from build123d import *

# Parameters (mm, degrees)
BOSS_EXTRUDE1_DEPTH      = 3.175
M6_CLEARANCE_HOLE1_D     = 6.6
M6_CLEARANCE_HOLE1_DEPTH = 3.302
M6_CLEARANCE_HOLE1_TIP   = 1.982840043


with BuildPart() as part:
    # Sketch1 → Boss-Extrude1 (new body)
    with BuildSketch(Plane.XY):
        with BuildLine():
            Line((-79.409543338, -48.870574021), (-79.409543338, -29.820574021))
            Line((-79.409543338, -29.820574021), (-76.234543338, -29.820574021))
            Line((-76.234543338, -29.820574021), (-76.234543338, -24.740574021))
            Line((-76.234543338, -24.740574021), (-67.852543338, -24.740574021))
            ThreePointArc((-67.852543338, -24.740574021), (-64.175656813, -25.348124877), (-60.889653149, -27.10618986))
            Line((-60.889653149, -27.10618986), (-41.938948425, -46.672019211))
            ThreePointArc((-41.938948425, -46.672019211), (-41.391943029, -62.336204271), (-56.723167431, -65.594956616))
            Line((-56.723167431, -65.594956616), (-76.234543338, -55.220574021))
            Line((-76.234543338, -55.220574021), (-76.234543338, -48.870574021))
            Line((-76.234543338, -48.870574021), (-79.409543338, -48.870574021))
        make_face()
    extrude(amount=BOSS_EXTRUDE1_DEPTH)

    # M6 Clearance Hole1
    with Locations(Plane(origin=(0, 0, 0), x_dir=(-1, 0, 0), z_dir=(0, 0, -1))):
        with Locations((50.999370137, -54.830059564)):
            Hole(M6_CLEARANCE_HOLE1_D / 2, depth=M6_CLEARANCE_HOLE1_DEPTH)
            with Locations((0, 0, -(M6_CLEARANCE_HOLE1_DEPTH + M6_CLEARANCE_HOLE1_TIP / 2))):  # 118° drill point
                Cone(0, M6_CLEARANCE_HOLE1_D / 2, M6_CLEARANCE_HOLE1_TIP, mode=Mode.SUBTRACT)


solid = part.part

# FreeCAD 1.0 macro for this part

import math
import FreeCAD as App
import Part
import Sketcher
Q = App.Units.Quantity

doc = App.newDocument("Part")
body = doc.addObject("PartDesign::Body", "Body")

sketch1 = body.newObject("Sketcher::SketchObject", "Sketch")
sketch1.AttachmentSupport = (doc.getObject("XY_Plane"), [""])
sketch1.MapMode = "FlatFace"
sketch1.addGeometry(Part.LineSegment(App.Vector(-79.409543, -29.820574, 0), App.Vector(-79.409543, -48.870574, 0)), False)
sketch1.addGeometry(Part.LineSegment(App.Vector(-79.409543, -48.870574, 0), App.Vector(-76.234543, -48.870574, 0)), False)
sketch1.addGeometry(Part.LineSegment(App.Vector(-76.234543, -48.870574, 0), App.Vector(-76.234543, -55.220574, 0)), False)
sketch1.addGeometry(Part.LineSegment(App.Vector(-76.234543, -55.220574, 0), App.Vector(-56.723167, -65.594957, 0)), False)
sketch1.addGeometry(Part.ArcOfCircle(Part.Circle(App.Vector(-50.99937, -54.83006, 0), App.Vector(0, 0, 1), 12.192), math.radians(-118), math.radians(42)), False)
sketch1.addGeometry(Part.LineSegment(App.Vector(-41.938948, -46.672019, 0), App.Vector(-60.889653, -27.10619, 0)), False)
sketch1.addGeometry(Part.ArcOfCircle(Part.Circle(App.Vector(-67.852543, -36.170574, 0), App.Vector(0, 0, 1), 11.43), math.radians(52.47), math.radians(90)), False)
sketch1.addGeometry(Part.LineSegment(App.Vector(-67.852543, -24.740574, 0), App.Vector(-76.234543, -24.740574, 0)), False)
sketch1.addGeometry(Part.LineSegment(App.Vector(-76.234543, -24.740574, 0), App.Vector(-76.234543, -29.820574, 0)), False)
sketch1.addGeometry(Part.LineSegment(App.Vector(-76.234543, -29.820574, 0), App.Vector(-79.409543, -29.820574, 0)), False)
sketch1.addConstraint(Sketcher.Constraint("Coincident", 0, 2, 1, 1))
sketch1.addConstraint(Sketcher.Constraint("Coincident", 1, 2, 2, 1))
sketch1.addConstraint(Sketcher.Constraint("Coincident", 2, 2, 3, 1))
sketch1.addConstraint(Sketcher.Constraint("Tangent", 3, 2, 4, 1))
sketch1.addConstraint(Sketcher.Constraint("Coincident", 4, 2, 5, 1))
sketch1.addConstraint(Sketcher.Constraint("Coincident", 5, 2, 6, 1))
sketch1.addConstraint(Sketcher.Constraint("Tangent", 6, 2, 7, 1))
sketch1.addConstraint(Sketcher.Constraint("Coincident", 7, 2, 8, 1))
sketch1.addConstraint(Sketcher.Constraint("Coincident", 8, 2, 9, 1))
sketch1.addConstraint(Sketcher.Constraint("Coincident", 9, 2, 0, 1))
sketch1.addConstraint(Sketcher.Constraint("Vertical", 0))
sketch1.addConstraint(Sketcher.Constraint("Horizontal", 1))
sketch1.addConstraint(Sketcher.Constraint("Vertical", 2))
sketch1.addConstraint(Sketcher.Constraint("Horizontal", 7))
sketch1.addConstraint(Sketcher.Constraint("Vertical", 8))
sketch1.addConstraint(Sketcher.Constraint("Horizontal", 9))
sketch1.addConstraint(Sketcher.Constraint("Vertical", 2, 2, 7, 2))
sketch1.addConstraint(Sketcher.Constraint("Radius", 4, Q("0.48 in")))
sketch1.addConstraint(Sketcher.Constraint("Radius", 6, Q("0.45 in")))
sketch1.addConstraint(Sketcher.Constraint("DistanceY", 8, 2, 8, 1, Q("0.2 in")))
sketch1.addConstraint(Sketcher.Constraint("Angle", 3, Q("-28 deg")))
sketch1.addConstraint(Sketcher.Constraint("DistanceX", 7, 2, 7, 1, Q("0.33 in")))
sketch1.addConstraint(Sketcher.Constraint("DistanceY", 0, 2, 0, 1, Q("0.75 in")))
sketch1.addConstraint(Sketcher.Constraint("DistanceY", 2, 2, 2, 1, Q("0.25 in")))
sketch1.addConstraint(Sketcher.Constraint("Distance", 3, Q("0.87 in")))
sketch1.addConstraint(Sketcher.Constraint("DistanceX", 1, 1, 1, 2, Q("0.125 in")))
sketch1.addConstraint(Sketcher.Constraint("DistanceX", 4, 3, -1, 1, 50.99937))
sketch1.addConstraint(Sketcher.Constraint("DistanceY", 4, 3, -1, 1, 54.83006))
sketch1.addConstraint(Sketcher.Constraint("DistanceX", 4, 2, -1, 1, 41.938948))
sketch1.addConstraint(Sketcher.Constraint("DistanceY", 5, 2, -1, 1, 27.10619))
pad1 = body.newObject("PartDesign::Pad", "Pad")
pad1.Profile = sketch1
pad1.Length = Q("0.125 in")

sketch2 = body.newObject("Sketcher::SketchObject", "Sketch001")
sketch2.AttachmentSupport = (doc.getObject("XY_Plane"), [""])
sketch2.MapMode = "FlatFace"
sketch2.addGeometry(Part.Circle(App.Vector(-50.99937, -54.83006, 0), App.Vector(0, 0, 1), 3.3), False)
sketch2.addConstraint(Sketcher.Constraint("Diameter", 0, 6.6))
sketch2.addConstraint(Sketcher.Constraint("DistanceX", 0, 3, -1, 1, 50.99937))
sketch2.addConstraint(Sketcher.Constraint("DistanceY", 0, 3, -1, 1, 54.83006))
doc.recompute()
hole = body.newObject("PartDesign::Hole", "Hole")
hole.Profile = sketch2
hole.ThreadType = "None"
hole.Diameter = 6.6
hole.DepthType = "Dimension"
hole.Depth = Q("0.13 in")
hole.DrillPoint = "Angled"
hole.DrillPointAngle = 118
hole.Reversed = True

doc.recompute()
